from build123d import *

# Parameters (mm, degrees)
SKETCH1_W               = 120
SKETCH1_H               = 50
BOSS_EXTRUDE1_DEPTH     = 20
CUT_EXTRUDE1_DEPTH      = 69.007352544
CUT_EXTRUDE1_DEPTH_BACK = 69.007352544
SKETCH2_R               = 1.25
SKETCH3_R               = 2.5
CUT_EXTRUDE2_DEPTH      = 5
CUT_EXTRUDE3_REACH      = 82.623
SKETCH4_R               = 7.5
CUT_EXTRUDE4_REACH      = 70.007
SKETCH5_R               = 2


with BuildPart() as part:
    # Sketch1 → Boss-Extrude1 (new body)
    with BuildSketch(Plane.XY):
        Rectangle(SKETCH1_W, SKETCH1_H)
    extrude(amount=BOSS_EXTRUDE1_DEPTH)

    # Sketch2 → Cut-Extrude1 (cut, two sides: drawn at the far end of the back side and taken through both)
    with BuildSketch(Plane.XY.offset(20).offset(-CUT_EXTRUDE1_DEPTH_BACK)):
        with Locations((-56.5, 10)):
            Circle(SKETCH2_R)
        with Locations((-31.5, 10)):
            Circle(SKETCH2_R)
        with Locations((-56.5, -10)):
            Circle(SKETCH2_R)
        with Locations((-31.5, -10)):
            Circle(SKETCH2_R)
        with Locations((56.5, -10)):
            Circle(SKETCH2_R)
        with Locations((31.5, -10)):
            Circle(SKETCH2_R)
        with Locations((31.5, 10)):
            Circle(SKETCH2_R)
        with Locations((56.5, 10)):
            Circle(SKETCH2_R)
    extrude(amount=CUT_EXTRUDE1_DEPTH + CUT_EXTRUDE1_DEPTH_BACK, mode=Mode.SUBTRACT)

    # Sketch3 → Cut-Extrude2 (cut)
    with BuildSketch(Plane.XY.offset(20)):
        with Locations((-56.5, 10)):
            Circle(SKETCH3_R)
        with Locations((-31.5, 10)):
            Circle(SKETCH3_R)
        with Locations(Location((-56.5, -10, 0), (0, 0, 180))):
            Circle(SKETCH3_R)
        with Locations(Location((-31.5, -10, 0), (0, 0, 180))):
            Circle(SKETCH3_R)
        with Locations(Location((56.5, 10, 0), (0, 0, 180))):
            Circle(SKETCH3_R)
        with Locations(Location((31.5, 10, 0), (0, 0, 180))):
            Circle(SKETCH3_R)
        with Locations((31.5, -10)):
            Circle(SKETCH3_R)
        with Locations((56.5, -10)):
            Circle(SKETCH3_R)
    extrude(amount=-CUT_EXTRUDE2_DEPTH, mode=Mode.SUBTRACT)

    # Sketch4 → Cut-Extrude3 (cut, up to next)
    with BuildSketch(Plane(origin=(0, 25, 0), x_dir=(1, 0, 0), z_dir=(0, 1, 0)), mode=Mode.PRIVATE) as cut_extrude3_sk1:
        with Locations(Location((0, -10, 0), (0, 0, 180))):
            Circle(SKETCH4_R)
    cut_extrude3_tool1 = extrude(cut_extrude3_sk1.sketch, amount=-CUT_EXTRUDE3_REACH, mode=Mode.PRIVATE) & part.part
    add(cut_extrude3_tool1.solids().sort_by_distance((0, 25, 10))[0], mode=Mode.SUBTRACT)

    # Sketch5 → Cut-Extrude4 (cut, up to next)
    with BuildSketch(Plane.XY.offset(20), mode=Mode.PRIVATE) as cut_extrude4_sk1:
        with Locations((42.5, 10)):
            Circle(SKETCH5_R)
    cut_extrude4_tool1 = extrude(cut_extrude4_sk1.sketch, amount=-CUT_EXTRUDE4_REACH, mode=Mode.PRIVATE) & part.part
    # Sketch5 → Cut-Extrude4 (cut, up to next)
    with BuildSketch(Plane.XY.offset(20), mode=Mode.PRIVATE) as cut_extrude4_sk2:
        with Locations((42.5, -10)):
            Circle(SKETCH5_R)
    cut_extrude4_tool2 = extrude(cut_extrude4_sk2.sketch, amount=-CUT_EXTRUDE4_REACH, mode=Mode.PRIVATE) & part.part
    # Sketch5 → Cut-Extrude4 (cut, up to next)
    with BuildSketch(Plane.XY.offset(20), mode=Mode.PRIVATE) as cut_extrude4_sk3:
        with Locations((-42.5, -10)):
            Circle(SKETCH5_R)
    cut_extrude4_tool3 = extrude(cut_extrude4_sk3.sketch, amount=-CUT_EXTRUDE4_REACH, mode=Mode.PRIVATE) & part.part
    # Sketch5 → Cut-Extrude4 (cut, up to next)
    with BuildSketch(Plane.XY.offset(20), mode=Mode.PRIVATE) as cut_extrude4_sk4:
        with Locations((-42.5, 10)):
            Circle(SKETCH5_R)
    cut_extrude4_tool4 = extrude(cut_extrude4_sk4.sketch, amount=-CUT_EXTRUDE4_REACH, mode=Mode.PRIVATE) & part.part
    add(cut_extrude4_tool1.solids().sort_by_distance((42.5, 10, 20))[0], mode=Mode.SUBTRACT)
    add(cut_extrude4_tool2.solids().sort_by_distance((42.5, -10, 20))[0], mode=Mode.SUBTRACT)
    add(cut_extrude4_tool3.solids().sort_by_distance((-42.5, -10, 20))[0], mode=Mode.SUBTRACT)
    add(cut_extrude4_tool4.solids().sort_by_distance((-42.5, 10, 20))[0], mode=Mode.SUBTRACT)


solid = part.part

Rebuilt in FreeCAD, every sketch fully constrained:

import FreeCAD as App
import Part
import Sketcher

V = App.Vector


def add_polygon(sketch, points):
    """Adds a closed chain of lines whose ends are joined by coincident constraints."""
    first, n = sketch.GeometryCount, len(points)
    for a, b in zip(points, points[1:] + points[:1]):
        sketch.addGeometry(Part.LineSegment(App.Vector(*a, 0), App.Vector(*b, 0)), False)
    for i in range(n):
        sketch.addConstraint(Sketcher.Constraint("Coincident", first + i, 2, first + (i + 1) % n, 1))

doc = App.newDocument("Part")
params = doc.addObject("Spreadsheet::Sheet", "Params")
for row, (alias, value) in enumerate([
    ("sketch1_width", "120 mm"),
    ("sketch1_height", "50 mm"),
    ("pad1_length", "20 mm"),
    ("sketch2_diameter", "2.5 mm"),
    ("sketch3_diameter", "5 mm"),
    ("pocket2_length", "5 mm"),
    ("sketch4_diameter", "15 mm"),
    ("sketch5_diameter", "4 mm"),
    ("sketch6_diameter", "4 mm"),
    ("sketch7_diameter", "4 mm"),
    ("sketch8_diameter", "4 mm"),
], start=1):
    params.set(f"A{row}", alias)
    params.set(f"B{row}", "=" + value)
    params.setAlias(f"B{row}", alias)

body = doc.addObject("PartDesign::Body", "Body")

# Sketch on XY plane
sketch1 = body.newObject("Sketcher::SketchObject", "Sketch")
sketch1.AttachmentSupport = (doc.getObject("XY_Plane"), [""])
sketch1.MapMode = "FlatFace"
add_polygon(sketch1, [(-60, 25), (-60, -25), (60, -25), (60, 25)])  # lines 0-3
sketch1.addConstraint(Sketcher.Constraint("Vertical", 0))
sketch1.addConstraint(Sketcher.Constraint("Horizontal", 1))
sketch1.addConstraint(Sketcher.Constraint("Vertical", 2))
sketch1.addConstraint(Sketcher.Constraint("Horizontal", 3))
sketch1.addConstraint(Sketcher.Constraint("Symmetric", 0, 2, 2, 2, -1, 1))
sketch1.addConstraint(Sketcher.Constraint("DistanceX", 1, 1, 1, 2, 120.0))
sketch1.addConstraint(Sketcher.Constraint("DistanceY", 0, 2, 0, 1, 50.0))
sketch1.setExpression("Constraints[9]", "Params.sketch1_width")
sketch1.setExpression("Constraints[10]", "Params.sketch1_height")
pad1 = body.newObject("PartDesign::Pad", "Pad")
pad1.Profile = sketch1
pad1.setExpression("Length", "Params.pad1_length")

# Sketch on XY plane
sketch2 = body.newObject("Sketcher::SketchObject", "Sketch001")
sketch2.AttachmentSupport = (doc.getObject("XY_Plane"), [""])
sketch2.MapMode = "FlatFace"
sketch2.AttachmentOffset = App.Placement(V(0, 0, 20), App.Rotation())
sketch2.addGeometry(Part.Circle(V(-56.5, 10, 0), V(0, 0, 1), 1.2), False)
sketch2.addGeometry(Part.Circle(V(-31.5, 10, 0), V(0, 0, 1), 1.2), False)
sketch2.addGeometry(Part.Circle(V(-56.5, -10, 0), V(0, 0, 1), 1.2), False)
sketch2.addGeometry(Part.Circle(V(-31.5, -10, 0), V(0, 0, 1), 1.2), False)
sketch2.addGeometry(Part.Circle(V(56.5, -10, 0), V(0, 0, 1), 1.2), False)
sketch2.addGeometry(Part.Circle(V(31.5, -10, 0), V(0, 0, 1), 1.2), False)
sketch2.addGeometry(Part.Circle(V(31.5, 10, 0), V(0, 0, 1), 1.2), False)
sketch2.addGeometry(Part.Circle(V(56.5, 10, 0), V(0, 0, 1), 1.2), False)
sketch2.addConstraint(Sketcher.Constraint("Equal", 0, 1))
sketch2.addConstraint(Sketcher.Constraint("Equal", 1, 2))
sketch2.addConstraint(Sketcher.Constraint("Equal", 2, 3))
sketch2.addConstraint(Sketcher.Constraint("Equal", 3, 4))
sketch2.addConstraint(Sketcher.Constraint("Equal", 4, 5))
sketch2.addConstraint(Sketcher.Constraint("Equal", 5, 6))
sketch2.addConstraint(Sketcher.Constraint("Equal", 6, 7))
sketch2.addConstraint(Sketcher.Constraint("Symmetric", 0, 3, 4, 3, -1, 1))
sketch2.addConstraint(Sketcher.Constraint("Symmetric", 1, 3, 5, 3, -1, 1))
sketch2.addConstraint(Sketcher.Constraint("Symmetric", 3, 3, 6, 3, -1, 1))
sketch2.addConstraint(Sketcher.Constraint("Symmetric", 2, 3, 7, 3, -1, 1))
sketch2.addConstraint(Sketcher.Constraint("Symmetric", 2, 3, 4, 3, -2))
sketch2.addConstraint(Sketcher.Constraint("Symmetric", 3, 3, 5, 3, -2))
sketch2.addConstraint(Sketcher.Constraint("Horizontal", 0, 3, 1, 3))
sketch2.addConstraint(Sketcher.Constraint("Diameter", 0, 2.5))
sketch2.addConstraint(Sketcher.Constraint("DistanceY", -1, 1, 0, 3, 10.0))
sketch2.addConstraint(Sketcher.Constraint("DistanceX", 0, 3, 1, 3, 25.0))
sketch2.addConstraint(Sketcher.Constraint("DistanceX", 3, 3, 4, 3, 88.0))
sketch2.setExpression("Constraints[14]", "Params.sketch2_diameter")
pocket1 = body.newObject("PartDesign::Pocket", "Pocket")
pocket1.Profile = sketch2
pocket1.Type = "ThroughAll"
pocket1.Midplane = True

# Sketch on XY plane
sketch3 = body.newObject("Sketcher::SketchObject", "Sketch002")
sketch3.AttachmentSupport = (doc.getObject("XY_Plane"), [""])
sketch3.MapMode = "FlatFace"
sketch3.AttachmentOffset = App.Placement(V(0, 0, 20), App.Rotation())
sketch3.addGeometry(Part.Circle(V(-56.5, 10, 0), V(0, 0, 1), 2.5), False)
sketch3.addGeometry(Part.Circle(V(-31.5, 10, 0), V(0, 0, 1), 2.5), False)
sketch3.addGeometry(Part.Circle(V(-56.5, -10, 0), V(0, 0, 1), 2.5), False)
sketch3.addGeometry(Part.Circle(V(-31.5, -10, 0), V(0, 0, 1), 2.5), False)
sketch3.addGeometry(Part.Circle(V(56.5, 10, 0), V(0, 0, 1), 2.5), False)
sketch3.addGeometry(Part.Circle(V(31.5, 10, 0), V(0, 0, 1), 2.5), False)
sketch3.addGeometry(Part.Circle(V(31.5, -10, 0), V(0, 0, 1), 2.5), False)
sketch3.addGeometry(Part.Circle(V(56.5, -10, 0), V(0, 0, 1), 2.5), False)
sketch3.addConstraint(Sketcher.Constraint("Equal", 0, 1))
sketch3.addConstraint(Sketcher.Constraint("Equal", 1, 2))
sketch3.addConstraint(Sketcher.Constraint("Equal", 2, 3))
sketch3.addConstraint(Sketcher.Constraint("Equal", 3, 4))
sketch3.addConstraint(Sketcher.Constraint("Equal", 4, 5))
sketch3.addConstraint(Sketcher.Constraint("Equal", 5, 6))
sketch3.addConstraint(Sketcher.Constraint("Equal", 6, 7))
sketch3.addConstraint(Sketcher.Constraint("Symmetric", 2, 3, 4, 3, -1, 1))
sketch3.addConstraint(Sketcher.Constraint("Symmetric", 3, 3, 5, 3, -1, 1))
sketch3.addConstraint(Sketcher.Constraint("Symmetric", 1, 3, 6, 3, -1, 1))
sketch3.addConstraint(Sketcher.Constraint("Symmetric", 0, 3, 7, 3, -1, 1))
sketch3.addConstraint(Sketcher.Constraint("Symmetric", 0, 3, 4, 3, -2))
sketch3.addConstraint(Sketcher.Constraint("Symmetric", 1, 3, 5, 3, -2))
sketch3.addConstraint(Sketcher.Constraint("Horizontal", 0, 3, 1, 3))
sketch3.addConstraint(Sketcher.Constraint("Diameter", 0, 5.0))
sketch3.addConstraint(Sketcher.Constraint("DistanceY", -1, 1, 0, 3, 10.0))
sketch3.addConstraint(Sketcher.Constraint("DistanceX", 0, 3, 1, 3, 25.0))
sketch3.addConstraint(Sketcher.Constraint("DistanceX", 1, 3, 4, 3, 88.0))
sketch3.setExpression("Constraints[14]", "Params.sketch3_diameter")
pocket2 = body.newObject("PartDesign::Pocket", "Pocket001")
pocket2.Profile = sketch3
pocket2.setExpression("Length", "Params.pocket2_length")

# Sketch on XZ plane
sketch4 = body.newObject("Sketcher::SketchObject", "Sketch003")
sketch4.AttachmentSupport = (doc.getObject("XZ_Plane"), [""])
sketch4.MapMode = "FlatFace"
sketch4.AttachmentOffset = App.Placement(V(0, 0, -25), App.Rotation())
sketch4.addGeometry(Part.Circle(V(0, 10, 0), V(0, 0, 1), 8), False)
sketch4.addConstraint(Sketcher.Constraint("PointOnObject", 0, 3, -2))
sketch4.addConstraint(Sketcher.Constraint("Diameter", 0, 15.0))
sketch4.addConstraint(Sketcher.Constraint("DistanceY", -1, 1, 0, 3, 10.0))
sketch4.setExpression("Constraints[1]", "Params.sketch4_diameter")
pocket3 = body.newObject("PartDesign::Pocket", "Pocket002")
pocket3.Profile = sketch4
pocket3.Type = "UpToFirst"
pocket3.Reversed = True

# Sketch on XY plane
sketch5 = body.newObject("Sketcher::SketchObject", "Sketch004")
sketch5.AttachmentSupport = (doc.getObject("XY_Plane"), [""])
sketch5.MapMode = "FlatFace"
sketch5.AttachmentOffset = App.Placement(V(0, 0, 20), App.Rotation())
sketch5.addGeometry(Part.Circle(V(42.5, 10, 0), V(0, 0, 1), 2), False)
sketch5.addConstraint(Sketcher.Constraint("Diameter", 0, 4.0))
sketch5.addConstraint(Sketcher.Constraint("DistanceY", -1, 1, 0, 3, 10.0))
sketch5.addConstraint(Sketcher.Constraint("DistanceX", -1, 1, 0, 3, 42.5))
sketch5.setExpression("Constraints[0]", "Params.sketch5_diameter")
pocket4 = body.newObject("PartDesign::Pocket", "Pocket003")
pocket4.Profile = sketch5
pocket4.Type = "UpToFirst"

# Sketch on XY plane
sketch6 = body.newObject("Sketcher::SketchObject", "Sketch005")
sketch6.AttachmentSupport = (doc.getObject("XY_Plane"), [""])
sketch6.MapMode = "FlatFace"
sketch6.AttachmentOffset = App.Placement(V(0, 0, 20), App.Rotation())
sketch6.addGeometry(Part.Circle(V(42.5, -10, 0), V(0, 0, 1), 2), False)
sketch6.addConstraint(Sketcher.Constraint("Diameter", 0, 4.0))
sketch6.addConstraint(Sketcher.Constraint("DistanceY", 0, 3, -1, 1, 10.0))
sketch6.addConstraint(Sketcher.Constraint("DistanceX", -1, 1, 0, 3, 42.5))
sketch6.setExpression("Constraints[0]", "Params.sketch6_diameter")
pocket5 = body.newObject("PartDesign::Pocket", "Pocket004")
pocket5.Profile = sketch6
pocket5.Type = "UpToFirst"

# Sketch on XY plane
sketch7 = body.newObject("Sketcher::SketchObject", "Sketch006")
sketch7.AttachmentSupport = (doc.getObject("XY_Plane"), [""])
sketch7.MapMode = "FlatFace"
sketch7.AttachmentOffset = App.Placement(V(0, 0, 20), App.Rotation())
sketch7.addGeometry(Part.Circle(V(-42.5, -10, 0), V(0, 0, 1), 2), False)
sketch7.addConstraint(Sketcher.Constraint("Diameter", 0, 4.0))
sketch7.addConstraint(Sketcher.Constraint("DistanceY", 0, 3, -1, 1, 10.0))
sketch7.addConstraint(Sketcher.Constraint("DistanceX", 0, 3, -1, 1, 42.5))
sketch7.setExpression("Constraints[0]", "Params.sketch7_diameter")
pocket6 = body.newObject("PartDesign::Pocket", "Pocket005")
pocket6.Profile = sketch7
pocket6.Type = "UpToFirst"

# Sketch on XY plane
sketch8 = body.newObject("Sketcher::SketchObject", "Sketch007")
sketch8.AttachmentSupport = (doc.getObject("XY_Plane"), [""])
sketch8.MapMode = "FlatFace"
sketch8.AttachmentOffset = App.Placement(V(0, 0, 20), App.Rotation())
sketch8.addGeometry(Part.Circle(V(-42.5, 10, 0), V(0, 0, 1), 2), False)
sketch8.addConstraint(Sketcher.Constraint("Diameter", 0, 4.0))
sketch8.addConstraint(Sketcher.Constraint("DistanceY", -1, 1, 0, 3, 10.0))
sketch8.addConstraint(Sketcher.Constraint("DistanceX", 0, 3, -1, 1, 42.5))
sketch8.setExpression("Constraints[0]", "Params.sketch8_diameter")
pocket7 = body.newObject("PartDesign::Pocket", "Pocket006")
pocket7.Profile = sketch8
pocket7.Type = "UpToFirst"

doc.recompute()
